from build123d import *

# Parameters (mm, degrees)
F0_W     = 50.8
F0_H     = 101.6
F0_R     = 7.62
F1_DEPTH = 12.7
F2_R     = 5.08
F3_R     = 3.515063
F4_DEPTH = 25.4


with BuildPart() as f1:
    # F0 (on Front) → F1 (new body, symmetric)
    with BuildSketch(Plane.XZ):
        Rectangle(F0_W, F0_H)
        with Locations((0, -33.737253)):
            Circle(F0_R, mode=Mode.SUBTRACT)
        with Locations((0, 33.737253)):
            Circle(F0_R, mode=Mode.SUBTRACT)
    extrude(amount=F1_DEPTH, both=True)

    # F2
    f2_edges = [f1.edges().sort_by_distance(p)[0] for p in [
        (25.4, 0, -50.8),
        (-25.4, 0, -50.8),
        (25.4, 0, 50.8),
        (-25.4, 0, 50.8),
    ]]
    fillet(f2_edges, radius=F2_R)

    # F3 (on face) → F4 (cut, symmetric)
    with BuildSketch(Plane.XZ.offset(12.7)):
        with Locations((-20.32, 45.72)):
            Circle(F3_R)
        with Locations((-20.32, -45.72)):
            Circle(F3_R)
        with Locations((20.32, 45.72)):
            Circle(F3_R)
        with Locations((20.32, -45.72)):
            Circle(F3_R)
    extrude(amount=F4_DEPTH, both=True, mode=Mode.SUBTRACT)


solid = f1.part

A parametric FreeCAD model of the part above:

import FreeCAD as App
import Part
import Sketcher
from FreeCAD import Vector
Q = App.Units.Quantity


def edges_at(feature, points):
    """Names of the edges that pass closest to the given points."""
    edges = feature.Shape.Edges
    near = lambda p: min(range(len(edges)), key=lambda i: edges[i].distToShape(Part.Vertex(*p))[0])
    return sorted({f"Edge{near(p) + 1}" for p in points})

doc = App.newDocument("Part")
body = doc.addObject("PartDesign::Body", "Body")

sketch1 = body.newObject("Sketcher::SketchObject", "Sketch")
sketch1.AttachmentSupport = (doc.getObject("XZ_Plane"), [""])
sketch1.MapMode = "FlatFace"
sketch1.addGeometry(Part.LineSegment(Vector(-25, 51, 0), Vector(-25, -51, 0)), False)
sketch1.addGeometry(Part.LineSegment(Vector(-25, -51, 0), Vector(25, -51, 0)), False)
sketch1.addGeometry(Part.LineSegment(Vector(25, -51, 0), Vector(25, 51, 0)), False)
sketch1.addGeometry(Part.LineSegment(Vector(25, 51, 0), Vector(-25, 51, 0)), False)
sketch1.addGeometry(Part.Circle(Vector(0, -34, 0), Vector(0, 0, 1), 8), False)
sketch1.addGeometry(Part.Circle(Vector(0, 34, 0), Vector(0, 0, 1), 8), False)
sketch1.addConstraint(Sketcher.Constraint("Coincident", 0, 2, 1, 1))
sketch1.addConstraint(Sketcher.Constraint("Coincident", 1, 2, 2, 1))
sketch1.addConstraint(Sketcher.Constraint("Coincident", 2, 2, 3, 1))
sketch1.addConstraint(Sketcher.Constraint("Coincident", 3, 2, 0, 1))
sketch1.addConstraint(Sketcher.Constraint("Vertical", 0))
sketch1.addConstraint(Sketcher.Constraint("Horizontal", 1))
sketch1.addConstraint(Sketcher.Constraint("Vertical", 2))
sketch1.addConstraint(Sketcher.Constraint("Horizontal", 3))
sketch1.addConstraint(Sketcher.Constraint("Equal", 4, 5))
sketch1.addConstraint(Sketcher.Constraint("Symmetric", 4, 3, 5, 3, -1, 1))
sketch1.addConstraint(Sketcher.Constraint("Symmetric", 0, 2, 2, 2, -1, 1))
sketch1.addConstraint(Sketcher.Constraint("PointOnObject", 4, 3, -2))
sketch1.addConstraint(Sketcher.Constraint("Diameter", 4, Q("0.6 in")))
sketch1.addConstraint(Sketcher.Constraint("DistanceX", 1, 1, 1, 2, Q("2 in")))
sketch1.addConstraint(Sketcher.Constraint("DistanceY", 0, 2, 0, 1, Q("4 in")))
sketch1.addConstraint(Sketcher.Constraint("DistanceY", 4, 3, -1, 1, 33.737253))
pad1 = body.newObject("PartDesign::Pad", "Pad")
pad1.Profile = sketch1
pad1.Length = Q("1 in")
pad1.Midplane = True
doc.recompute()

fillet = body.newObject("PartDesign::Fillet", "Fillet")
fillet.Base = (pad1, edges_at(pad1, [
    (25.4, 0, -50.8),
    (-25.4, 0, -50.8),
    (25.4, 0, 50.8),
    (-25.4, 0, 50.8),
]))
fillet.Radius = Q("0.2 in")

sketch2 = body.newObject("Sketcher::SketchObject", "Sketch001")
sketch2.AttachmentSupport = (doc.getObject("XZ_Plane"), [""])
sketch2.MapMode = "FlatFace"
sketch2.AttachmentOffset = App.Placement(Vector(0, 0, 0.5 * 25.4), App.Rotation())
sketch2.addGeometry(Part.Circle(Vector(-20.3, 45.7, 0), Vector(0, 0, 1), 3.5), False)
sketch2.addGeometry(Part.Circle(Vector(-20.3, -45.7, 0), Vector(0, 0, 1), 3.5), False)
sketch2.addGeometry(Part.Circle(Vector(20.3, 45.7, 0), Vector(0, 0, 1), 3.5), False)
sketch2.addGeometry(Part.Circle(Vector(20.3, -45.7, 0), Vector(0, 0, 1), 3.5), False)
sketch2.addConstraint(Sketcher.Constraint("Equal", 0, 1))
sketch2.addConstraint(Sketcher.Constraint("Equal", 1, 2))
sketch2.addConstraint(Sketcher.Constraint("Equal", 2, 3))
sketch2.addConstraint(Sketcher.Constraint("Symmetric", 1, 3, 2, 3, -1, 1))
sketch2.addConstraint(Sketcher.Constraint("Symmetric", 0, 3, 3, 3, -1, 1))
sketch2.addConstraint(Sketcher.Constraint("Symmetric", 0, 3, 2, 3, -2))
sketch2.addConstraint(Sketcher.Constraint("DistanceX", 0, 3, -1, 1, Q("0.8 in")))
sketch2.addConstraint(Sketcher.Constraint("DistanceY", -1, 1, 0, 3, Q("1.8 in")))
sketch2.addConstraint(Sketcher.Constraint("Diameter", 0, 7.030126))
pocket1 = body.newObject("PartDesign::Pocket", "Pocket")
pocket1.Profile = sketch2
pocket1.Length = Q("2 in")
pocket1.Midplane = True

doc.recompute()
